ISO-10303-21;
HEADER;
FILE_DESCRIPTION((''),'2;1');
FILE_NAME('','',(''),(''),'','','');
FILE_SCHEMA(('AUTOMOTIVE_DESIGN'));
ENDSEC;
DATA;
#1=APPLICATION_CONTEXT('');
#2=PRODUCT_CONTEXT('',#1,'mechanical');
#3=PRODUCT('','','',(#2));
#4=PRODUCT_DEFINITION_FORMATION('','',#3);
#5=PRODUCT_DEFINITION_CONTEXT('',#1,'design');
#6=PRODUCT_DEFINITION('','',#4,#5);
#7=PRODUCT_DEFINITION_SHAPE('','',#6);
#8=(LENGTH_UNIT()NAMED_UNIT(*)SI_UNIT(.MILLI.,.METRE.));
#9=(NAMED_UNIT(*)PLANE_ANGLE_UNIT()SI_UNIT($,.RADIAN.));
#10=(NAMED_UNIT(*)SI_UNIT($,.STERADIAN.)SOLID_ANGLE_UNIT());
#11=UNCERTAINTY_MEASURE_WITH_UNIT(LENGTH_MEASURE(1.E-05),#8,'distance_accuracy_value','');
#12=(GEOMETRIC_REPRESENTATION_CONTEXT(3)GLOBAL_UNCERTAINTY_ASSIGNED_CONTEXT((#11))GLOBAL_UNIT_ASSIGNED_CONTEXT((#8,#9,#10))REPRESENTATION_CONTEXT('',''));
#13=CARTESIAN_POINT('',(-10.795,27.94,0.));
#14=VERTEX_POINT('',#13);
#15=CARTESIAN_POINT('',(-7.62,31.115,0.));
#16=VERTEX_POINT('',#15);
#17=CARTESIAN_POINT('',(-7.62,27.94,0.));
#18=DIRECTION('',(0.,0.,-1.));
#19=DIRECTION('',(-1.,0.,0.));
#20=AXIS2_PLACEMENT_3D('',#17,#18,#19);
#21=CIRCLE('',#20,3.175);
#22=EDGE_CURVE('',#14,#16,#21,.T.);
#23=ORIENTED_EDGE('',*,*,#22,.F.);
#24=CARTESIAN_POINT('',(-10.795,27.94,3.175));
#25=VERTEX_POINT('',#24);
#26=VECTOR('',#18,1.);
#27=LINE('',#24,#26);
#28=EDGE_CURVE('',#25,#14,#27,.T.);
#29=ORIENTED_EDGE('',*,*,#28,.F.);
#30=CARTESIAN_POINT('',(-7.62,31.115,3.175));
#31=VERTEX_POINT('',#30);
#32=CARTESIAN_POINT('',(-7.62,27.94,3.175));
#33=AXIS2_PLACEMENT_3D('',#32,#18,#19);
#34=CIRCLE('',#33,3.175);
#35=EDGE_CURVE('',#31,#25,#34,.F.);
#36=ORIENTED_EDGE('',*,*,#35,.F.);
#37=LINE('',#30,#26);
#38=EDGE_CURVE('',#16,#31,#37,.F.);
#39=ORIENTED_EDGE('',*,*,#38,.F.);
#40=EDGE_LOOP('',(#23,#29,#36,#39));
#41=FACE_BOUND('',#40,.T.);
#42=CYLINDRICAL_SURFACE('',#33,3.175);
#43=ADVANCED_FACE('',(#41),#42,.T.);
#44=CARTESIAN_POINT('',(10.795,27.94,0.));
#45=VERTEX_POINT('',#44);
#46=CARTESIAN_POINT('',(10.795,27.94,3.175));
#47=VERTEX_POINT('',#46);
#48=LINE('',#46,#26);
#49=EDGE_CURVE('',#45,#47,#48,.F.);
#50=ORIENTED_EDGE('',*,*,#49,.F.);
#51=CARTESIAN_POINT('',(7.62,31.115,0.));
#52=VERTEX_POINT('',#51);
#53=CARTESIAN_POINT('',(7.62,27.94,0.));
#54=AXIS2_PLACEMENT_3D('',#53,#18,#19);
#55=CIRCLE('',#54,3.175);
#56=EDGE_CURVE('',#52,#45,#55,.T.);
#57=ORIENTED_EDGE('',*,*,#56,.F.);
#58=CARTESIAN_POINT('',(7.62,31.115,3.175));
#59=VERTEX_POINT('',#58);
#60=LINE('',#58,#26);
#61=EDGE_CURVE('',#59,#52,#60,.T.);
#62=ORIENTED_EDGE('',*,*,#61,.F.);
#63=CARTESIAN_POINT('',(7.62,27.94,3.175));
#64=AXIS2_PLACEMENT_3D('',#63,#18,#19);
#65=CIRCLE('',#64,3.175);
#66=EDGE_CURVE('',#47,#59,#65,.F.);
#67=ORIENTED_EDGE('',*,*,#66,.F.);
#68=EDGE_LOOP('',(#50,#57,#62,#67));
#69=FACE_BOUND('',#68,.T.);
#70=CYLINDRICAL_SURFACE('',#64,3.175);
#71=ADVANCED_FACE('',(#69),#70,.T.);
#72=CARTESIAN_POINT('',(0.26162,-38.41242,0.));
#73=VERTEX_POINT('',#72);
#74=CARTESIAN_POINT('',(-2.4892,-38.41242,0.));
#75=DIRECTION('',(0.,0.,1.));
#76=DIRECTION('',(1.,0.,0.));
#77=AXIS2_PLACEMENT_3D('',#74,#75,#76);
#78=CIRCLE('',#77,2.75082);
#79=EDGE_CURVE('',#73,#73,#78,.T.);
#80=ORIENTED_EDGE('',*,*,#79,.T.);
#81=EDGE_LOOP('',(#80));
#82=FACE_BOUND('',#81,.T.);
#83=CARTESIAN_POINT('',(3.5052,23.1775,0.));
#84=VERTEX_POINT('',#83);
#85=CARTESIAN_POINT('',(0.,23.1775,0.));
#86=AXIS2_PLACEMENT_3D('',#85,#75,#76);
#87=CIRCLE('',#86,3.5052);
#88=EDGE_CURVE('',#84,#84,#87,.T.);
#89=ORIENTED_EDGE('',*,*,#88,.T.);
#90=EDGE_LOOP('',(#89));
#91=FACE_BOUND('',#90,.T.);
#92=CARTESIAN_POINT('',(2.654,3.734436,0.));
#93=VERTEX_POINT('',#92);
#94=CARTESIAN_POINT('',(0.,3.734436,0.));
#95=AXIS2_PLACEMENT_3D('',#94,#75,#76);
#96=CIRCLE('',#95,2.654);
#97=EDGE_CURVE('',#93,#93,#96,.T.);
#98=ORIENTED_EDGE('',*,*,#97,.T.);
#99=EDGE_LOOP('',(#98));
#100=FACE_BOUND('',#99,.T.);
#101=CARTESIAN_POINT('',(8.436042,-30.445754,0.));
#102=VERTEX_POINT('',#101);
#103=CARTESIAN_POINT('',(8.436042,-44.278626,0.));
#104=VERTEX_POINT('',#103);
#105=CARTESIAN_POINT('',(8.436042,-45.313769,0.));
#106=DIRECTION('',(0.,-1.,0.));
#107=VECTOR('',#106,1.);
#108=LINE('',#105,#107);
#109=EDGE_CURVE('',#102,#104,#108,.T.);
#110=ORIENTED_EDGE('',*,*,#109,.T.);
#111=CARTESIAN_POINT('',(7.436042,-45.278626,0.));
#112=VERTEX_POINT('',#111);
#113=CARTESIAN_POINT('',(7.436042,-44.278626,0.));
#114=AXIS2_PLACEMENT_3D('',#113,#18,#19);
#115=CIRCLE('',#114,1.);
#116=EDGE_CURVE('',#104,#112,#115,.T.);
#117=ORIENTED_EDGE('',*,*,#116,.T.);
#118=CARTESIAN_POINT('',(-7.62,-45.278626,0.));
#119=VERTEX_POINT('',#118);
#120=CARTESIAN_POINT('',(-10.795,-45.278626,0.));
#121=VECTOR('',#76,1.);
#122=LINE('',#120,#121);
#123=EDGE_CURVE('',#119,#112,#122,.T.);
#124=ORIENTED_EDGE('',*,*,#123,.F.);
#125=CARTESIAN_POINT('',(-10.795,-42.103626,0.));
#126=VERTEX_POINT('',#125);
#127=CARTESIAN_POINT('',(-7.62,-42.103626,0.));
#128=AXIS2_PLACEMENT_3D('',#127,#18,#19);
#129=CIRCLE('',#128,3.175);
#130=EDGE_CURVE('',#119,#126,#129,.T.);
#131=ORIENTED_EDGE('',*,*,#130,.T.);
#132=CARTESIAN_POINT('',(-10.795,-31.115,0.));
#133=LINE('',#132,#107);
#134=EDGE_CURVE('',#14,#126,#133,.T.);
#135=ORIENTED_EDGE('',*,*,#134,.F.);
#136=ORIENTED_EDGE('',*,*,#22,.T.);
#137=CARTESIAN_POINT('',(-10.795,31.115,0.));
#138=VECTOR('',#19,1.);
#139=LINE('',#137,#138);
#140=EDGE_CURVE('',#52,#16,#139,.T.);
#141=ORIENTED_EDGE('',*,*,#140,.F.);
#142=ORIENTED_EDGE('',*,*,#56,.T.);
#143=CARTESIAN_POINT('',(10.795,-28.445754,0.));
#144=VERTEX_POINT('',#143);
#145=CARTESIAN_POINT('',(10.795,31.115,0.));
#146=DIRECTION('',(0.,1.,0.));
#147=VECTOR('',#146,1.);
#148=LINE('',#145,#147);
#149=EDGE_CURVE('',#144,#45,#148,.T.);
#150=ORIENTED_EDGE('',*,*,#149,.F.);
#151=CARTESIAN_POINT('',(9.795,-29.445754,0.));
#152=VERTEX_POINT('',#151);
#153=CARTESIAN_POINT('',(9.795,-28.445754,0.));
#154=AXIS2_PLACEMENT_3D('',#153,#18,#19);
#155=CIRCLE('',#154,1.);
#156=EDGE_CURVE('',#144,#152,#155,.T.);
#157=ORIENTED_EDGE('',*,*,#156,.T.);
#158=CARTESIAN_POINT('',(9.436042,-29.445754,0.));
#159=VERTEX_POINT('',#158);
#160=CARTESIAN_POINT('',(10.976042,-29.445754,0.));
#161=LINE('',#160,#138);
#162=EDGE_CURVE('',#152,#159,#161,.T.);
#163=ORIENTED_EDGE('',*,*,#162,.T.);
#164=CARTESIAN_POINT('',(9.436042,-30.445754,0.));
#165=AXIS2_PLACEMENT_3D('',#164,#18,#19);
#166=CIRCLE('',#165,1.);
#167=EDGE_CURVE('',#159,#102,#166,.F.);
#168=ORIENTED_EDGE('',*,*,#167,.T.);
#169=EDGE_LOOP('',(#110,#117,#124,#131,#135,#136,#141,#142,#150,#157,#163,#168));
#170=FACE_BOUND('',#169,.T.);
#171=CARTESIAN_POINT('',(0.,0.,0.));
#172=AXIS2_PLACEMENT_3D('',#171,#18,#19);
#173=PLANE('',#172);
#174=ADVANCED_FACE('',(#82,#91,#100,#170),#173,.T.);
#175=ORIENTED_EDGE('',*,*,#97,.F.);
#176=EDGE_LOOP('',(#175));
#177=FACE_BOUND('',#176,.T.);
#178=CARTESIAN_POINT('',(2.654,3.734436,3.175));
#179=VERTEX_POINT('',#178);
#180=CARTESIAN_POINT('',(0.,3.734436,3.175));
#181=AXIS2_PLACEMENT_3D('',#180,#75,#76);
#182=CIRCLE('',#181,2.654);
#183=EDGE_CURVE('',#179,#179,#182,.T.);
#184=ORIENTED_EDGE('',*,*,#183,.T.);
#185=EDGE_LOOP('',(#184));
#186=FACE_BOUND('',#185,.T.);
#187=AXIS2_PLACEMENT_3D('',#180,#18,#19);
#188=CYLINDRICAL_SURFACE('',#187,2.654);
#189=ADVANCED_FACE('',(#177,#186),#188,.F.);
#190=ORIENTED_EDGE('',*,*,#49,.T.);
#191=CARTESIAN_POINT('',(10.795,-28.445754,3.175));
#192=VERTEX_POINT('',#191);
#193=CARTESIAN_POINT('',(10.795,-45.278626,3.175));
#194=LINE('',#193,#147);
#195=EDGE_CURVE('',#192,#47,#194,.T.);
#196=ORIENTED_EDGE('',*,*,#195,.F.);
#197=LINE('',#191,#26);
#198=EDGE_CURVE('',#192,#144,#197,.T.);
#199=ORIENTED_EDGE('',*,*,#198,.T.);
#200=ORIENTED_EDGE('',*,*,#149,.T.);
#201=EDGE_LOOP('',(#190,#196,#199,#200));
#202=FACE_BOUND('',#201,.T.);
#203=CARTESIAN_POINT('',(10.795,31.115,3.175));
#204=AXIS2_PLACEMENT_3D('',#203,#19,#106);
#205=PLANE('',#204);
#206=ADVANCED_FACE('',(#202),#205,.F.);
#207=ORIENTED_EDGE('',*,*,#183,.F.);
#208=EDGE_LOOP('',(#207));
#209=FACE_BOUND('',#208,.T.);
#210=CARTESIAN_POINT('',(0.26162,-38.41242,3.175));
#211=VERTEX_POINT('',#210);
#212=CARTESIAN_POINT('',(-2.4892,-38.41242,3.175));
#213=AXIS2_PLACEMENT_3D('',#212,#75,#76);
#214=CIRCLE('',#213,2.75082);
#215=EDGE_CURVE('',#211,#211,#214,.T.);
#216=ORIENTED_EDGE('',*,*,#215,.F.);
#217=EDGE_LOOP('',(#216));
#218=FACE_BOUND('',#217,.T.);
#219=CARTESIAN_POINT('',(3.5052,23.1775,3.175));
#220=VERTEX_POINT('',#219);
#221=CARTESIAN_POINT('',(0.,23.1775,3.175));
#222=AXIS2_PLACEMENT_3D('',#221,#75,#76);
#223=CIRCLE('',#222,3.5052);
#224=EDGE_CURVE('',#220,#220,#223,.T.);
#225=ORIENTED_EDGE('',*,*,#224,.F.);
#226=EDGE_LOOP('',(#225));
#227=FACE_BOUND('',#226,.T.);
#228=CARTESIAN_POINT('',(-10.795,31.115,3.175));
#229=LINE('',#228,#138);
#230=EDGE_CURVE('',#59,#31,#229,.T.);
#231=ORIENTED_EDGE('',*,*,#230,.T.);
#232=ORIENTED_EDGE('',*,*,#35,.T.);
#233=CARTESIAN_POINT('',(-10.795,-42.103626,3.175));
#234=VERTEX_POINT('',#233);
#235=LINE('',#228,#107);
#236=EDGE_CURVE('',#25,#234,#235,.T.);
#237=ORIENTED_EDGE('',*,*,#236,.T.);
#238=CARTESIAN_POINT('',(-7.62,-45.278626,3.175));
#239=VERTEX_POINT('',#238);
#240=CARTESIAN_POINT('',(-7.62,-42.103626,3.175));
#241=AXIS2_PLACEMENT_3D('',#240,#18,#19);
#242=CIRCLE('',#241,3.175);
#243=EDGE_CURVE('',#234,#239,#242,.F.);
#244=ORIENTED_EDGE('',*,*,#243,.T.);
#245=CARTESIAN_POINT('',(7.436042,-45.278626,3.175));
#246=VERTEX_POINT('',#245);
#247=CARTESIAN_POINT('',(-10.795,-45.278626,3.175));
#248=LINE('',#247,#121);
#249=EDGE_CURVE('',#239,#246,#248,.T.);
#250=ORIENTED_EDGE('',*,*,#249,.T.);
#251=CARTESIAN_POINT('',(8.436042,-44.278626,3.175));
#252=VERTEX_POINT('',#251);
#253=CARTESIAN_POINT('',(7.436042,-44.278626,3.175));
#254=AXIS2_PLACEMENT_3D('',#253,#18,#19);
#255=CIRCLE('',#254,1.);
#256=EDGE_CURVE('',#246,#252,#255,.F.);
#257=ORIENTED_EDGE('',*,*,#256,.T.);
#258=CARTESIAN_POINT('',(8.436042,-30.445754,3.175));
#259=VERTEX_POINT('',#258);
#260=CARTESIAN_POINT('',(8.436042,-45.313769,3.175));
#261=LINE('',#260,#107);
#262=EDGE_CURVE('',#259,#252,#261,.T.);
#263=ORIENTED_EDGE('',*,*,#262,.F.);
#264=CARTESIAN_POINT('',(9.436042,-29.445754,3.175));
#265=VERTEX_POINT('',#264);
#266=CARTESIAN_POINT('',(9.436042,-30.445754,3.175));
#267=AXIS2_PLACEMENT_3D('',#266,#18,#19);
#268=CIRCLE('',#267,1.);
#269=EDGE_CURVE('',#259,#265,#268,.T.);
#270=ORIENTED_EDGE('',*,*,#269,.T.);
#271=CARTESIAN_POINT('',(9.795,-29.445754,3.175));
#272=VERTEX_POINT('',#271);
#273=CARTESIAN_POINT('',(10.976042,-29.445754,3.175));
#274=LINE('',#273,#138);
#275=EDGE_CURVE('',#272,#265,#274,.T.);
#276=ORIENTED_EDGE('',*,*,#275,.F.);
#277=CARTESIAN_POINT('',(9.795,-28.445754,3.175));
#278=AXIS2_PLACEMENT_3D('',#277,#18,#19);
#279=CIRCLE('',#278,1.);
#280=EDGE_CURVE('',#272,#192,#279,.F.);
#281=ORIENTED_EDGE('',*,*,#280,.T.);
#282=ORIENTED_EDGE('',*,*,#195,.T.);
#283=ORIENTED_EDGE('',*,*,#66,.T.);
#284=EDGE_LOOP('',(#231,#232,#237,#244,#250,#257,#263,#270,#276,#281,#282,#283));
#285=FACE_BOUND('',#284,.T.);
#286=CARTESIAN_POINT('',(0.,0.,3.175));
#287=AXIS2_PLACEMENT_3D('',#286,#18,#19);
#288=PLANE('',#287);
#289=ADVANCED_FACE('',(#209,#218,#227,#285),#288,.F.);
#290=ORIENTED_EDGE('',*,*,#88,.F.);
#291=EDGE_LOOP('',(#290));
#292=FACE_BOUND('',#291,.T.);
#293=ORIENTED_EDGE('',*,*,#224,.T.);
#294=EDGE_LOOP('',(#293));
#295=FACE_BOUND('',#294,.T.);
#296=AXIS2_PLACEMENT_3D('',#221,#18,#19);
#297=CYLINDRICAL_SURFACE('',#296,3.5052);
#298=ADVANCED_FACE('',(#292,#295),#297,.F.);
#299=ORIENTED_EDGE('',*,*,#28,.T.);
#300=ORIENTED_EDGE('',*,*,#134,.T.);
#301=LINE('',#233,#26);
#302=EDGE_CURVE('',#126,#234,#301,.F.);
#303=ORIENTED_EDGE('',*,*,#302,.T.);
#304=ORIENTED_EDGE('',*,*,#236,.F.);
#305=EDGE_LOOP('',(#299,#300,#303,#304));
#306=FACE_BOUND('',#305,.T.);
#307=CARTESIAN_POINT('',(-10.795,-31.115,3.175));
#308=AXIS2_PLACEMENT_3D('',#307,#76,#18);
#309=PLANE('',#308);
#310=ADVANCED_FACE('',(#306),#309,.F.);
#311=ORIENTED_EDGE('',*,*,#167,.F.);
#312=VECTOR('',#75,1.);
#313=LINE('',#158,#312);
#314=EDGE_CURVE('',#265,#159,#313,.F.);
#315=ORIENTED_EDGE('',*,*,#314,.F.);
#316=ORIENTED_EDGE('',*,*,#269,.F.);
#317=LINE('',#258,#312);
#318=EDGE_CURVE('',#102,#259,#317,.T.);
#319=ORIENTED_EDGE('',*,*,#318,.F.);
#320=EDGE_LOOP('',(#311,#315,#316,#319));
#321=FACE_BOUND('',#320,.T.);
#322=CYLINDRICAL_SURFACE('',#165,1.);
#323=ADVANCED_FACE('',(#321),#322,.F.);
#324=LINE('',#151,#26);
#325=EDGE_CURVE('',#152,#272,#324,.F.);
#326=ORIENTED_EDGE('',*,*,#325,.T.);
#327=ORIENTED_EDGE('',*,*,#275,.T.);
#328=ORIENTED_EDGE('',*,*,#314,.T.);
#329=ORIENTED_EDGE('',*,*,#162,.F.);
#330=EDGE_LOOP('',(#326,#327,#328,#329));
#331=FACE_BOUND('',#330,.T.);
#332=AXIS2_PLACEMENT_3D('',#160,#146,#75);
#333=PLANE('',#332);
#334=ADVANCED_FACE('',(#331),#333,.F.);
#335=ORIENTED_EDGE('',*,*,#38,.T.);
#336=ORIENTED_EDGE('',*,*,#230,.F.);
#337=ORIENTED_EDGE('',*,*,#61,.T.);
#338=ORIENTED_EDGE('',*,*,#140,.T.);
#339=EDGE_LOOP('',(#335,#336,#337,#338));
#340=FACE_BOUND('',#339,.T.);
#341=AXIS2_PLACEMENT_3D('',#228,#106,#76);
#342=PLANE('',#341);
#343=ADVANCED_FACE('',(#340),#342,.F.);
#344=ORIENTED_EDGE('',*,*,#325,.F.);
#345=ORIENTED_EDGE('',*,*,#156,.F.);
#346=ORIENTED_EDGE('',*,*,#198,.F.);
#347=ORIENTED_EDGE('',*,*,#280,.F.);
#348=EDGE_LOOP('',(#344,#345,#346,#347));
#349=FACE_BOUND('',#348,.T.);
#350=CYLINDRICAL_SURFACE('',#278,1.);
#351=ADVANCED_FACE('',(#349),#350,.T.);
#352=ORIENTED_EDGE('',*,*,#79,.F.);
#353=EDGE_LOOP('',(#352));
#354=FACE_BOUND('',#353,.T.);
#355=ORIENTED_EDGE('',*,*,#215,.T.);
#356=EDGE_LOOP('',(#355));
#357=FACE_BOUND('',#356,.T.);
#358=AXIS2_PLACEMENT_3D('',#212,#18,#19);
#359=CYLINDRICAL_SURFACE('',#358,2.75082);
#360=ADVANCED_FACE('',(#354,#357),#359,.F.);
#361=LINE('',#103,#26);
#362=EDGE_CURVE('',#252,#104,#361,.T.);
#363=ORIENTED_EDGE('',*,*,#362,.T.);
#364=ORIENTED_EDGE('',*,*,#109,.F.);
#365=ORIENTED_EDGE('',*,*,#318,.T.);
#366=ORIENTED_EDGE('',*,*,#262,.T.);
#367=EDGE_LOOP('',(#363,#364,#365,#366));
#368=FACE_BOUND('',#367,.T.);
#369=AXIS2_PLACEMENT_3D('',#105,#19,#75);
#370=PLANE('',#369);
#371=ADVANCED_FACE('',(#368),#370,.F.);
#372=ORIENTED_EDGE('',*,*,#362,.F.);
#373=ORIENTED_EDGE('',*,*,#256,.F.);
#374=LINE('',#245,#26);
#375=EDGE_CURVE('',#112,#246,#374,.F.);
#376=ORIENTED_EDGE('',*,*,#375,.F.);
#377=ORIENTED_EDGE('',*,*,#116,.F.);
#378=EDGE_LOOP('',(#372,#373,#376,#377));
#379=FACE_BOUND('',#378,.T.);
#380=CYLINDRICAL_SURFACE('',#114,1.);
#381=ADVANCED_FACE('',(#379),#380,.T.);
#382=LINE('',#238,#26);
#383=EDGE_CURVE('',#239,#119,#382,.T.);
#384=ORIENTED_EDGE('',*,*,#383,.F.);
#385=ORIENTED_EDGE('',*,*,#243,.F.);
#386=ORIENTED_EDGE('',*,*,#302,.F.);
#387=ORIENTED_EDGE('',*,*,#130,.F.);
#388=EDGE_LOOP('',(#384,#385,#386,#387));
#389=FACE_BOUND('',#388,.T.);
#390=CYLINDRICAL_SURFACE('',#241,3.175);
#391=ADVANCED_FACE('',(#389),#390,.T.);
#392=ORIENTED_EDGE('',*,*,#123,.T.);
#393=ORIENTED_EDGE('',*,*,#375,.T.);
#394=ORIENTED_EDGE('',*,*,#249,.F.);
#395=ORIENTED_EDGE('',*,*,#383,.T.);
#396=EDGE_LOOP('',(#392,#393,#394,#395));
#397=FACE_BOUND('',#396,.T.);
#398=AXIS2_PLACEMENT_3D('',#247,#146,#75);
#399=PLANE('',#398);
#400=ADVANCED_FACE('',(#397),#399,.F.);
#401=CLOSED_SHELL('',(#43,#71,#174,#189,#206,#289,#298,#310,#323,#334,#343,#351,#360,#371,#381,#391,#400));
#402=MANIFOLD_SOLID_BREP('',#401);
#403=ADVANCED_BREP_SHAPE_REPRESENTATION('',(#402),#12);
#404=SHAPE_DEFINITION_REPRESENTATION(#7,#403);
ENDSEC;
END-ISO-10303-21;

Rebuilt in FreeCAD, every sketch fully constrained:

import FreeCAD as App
import Part
import Sketcher
Q = App.Units.Quantity


def edges_at(feature, points):
    """Names of the edges that pass closest to the given points."""
    edges = feature.Shape.Edges
    near = lambda p: min(range(len(edges)), key=lambda i: edges[i].distToShape(Part.Vertex(*p))[0])
    return sorted({f"Edge{near(p) + 1}" for p in points})


def add_polygon(sketch, points):
    """Adds a closed chain of lines whose ends are joined by coincident constraints."""
    first, n = sketch.GeometryCount, len(points)
    for a, b in zip(points, points[1:] + points[:1]):
        sketch.addGeometry(Part.LineSegment(App.Vector(*a, 0), App.Vector(*b, 0)), False)
    for i in range(n):
        sketch.addConstraint(Sketcher.Constraint("Coincident", first + i, 2, first + (i + 1) % n, 1))

doc = App.newDocument("Part")
params = doc.addObject("Spreadsheet::Sheet", "Params")
for row, (alias, value) in enumerate([
    ("sketch1_diameter", "0.276 in"),
    ("sketch1_width", "0.85 in"),
    ("pad1_length", "0.125 in"),
    ("fillet_radius", "0.125 in"),
    ("sketch2_width", "0.1 in"),
    ("fillet2_radius", "1 mm"),
], start=1):
    params.set(f"A{row}", alias)
    params.set(f"B{row}", "=" + value)
    params.setAlias(f"B{row}", alias)

body = doc.addObject("PartDesign::Body", "Body")

# Sketch on XY plane
sketch1 = doc.addObject("Sketcher::SketchObject", "Sketch")
body.addObject(sketch1)
sketch1.AttachmentSupport = (doc.XY_Plane, [""])
sketch1.MapMode = "FlatFace"
add_polygon(sketch1, [(10.795, 31.115), (-10.795, 31.115), (-10.795, -45.278626), (10.795, -45.278626)])  # lines 0-3
sketch1.addGeometry(Part.Circle(App.Vector(-2.4892, -38.41242, 0), App.Vector(0, 0, 1), 2.75082), False)  # 4
sketch1.addGeometry(Part.Circle(App.Vector(0, 3.734436, 0), App.Vector(0, 0, 1), 2.654), False)  # 5
sketch1.addGeometry(Part.Circle(App.Vector(0, 23.1775, 0), App.Vector(0, 0, 1), 3.5052), False)  # 6
sketch1.addConstraint([
    Sketcher.Constraint("Horizontal", 0),
    Sketcher.Constraint("Vertical", 1),
    Sketcher.Constraint("Horizontal", 2),
    Sketcher.Constraint("Vertical", 3),
    Sketcher.Constraint("PointOnObject", 5, 3, -2),
    Sketcher.Constraint("PointOnObject", 6, 3, -2),
    Sketcher.Constraint("Diameter", 6, Q("0.276 in")),
    Sketcher.Constraint("Diameter", 4, Q("0.2166 in")),
    Sketcher.Constraint("DistanceX", 0, 2, 0, 1, Q("0.85 in")),
    Sketcher.Constraint("Diameter", 5, 5.308),
    Sketcher.Constraint("DistanceX", 4, 3, -1, 1, Q("0.098 in")),
    Sketcher.Constraint("DistanceX", 0, 2, -1, 1, Q("0.425 in")),
    Sketcher.Constraint("DistanceY", -1, 1, 0, 2, Q("1.225 in")),
    Sketcher.Constraint("DistanceY", 6, 3, 0, 2, Q("0.3125 in")),
    Sketcher.Constraint("DistanceY", 4, 3, -1, 1, Q("1.5123 in")),
    Sketcher.Constraint("DistanceY", 1, 2, 1, 1, 76.393626),
    Sketcher.Constraint("DistanceY", 1, 2, 5, 3, 49.013062),
])
sketch1.setExpression("Constraints[10]", "Params.sketch1_diameter")
sketch1.setExpression("Constraints[12]", "Params.sketch1_width")
pad1 = doc.addObject("PartDesign::Pad", "Pad")
body.addObject(pad1)
pad1.Profile = sketch1
pad1.setExpression("Length", "Params.pad1_length")
doc.recompute()

fillet = doc.addObject("PartDesign::Fillet", "Fillet")
body.addObject(fillet)
fillet.Base = (pad1, edges_at(pad1, [
    (10.795, -45.279, 1.587),
    (-10.795, -45.279, 1.587),
    (-10.795, 31.115, 1.587),
    (10.795, 31.115, 1.587),
]))
fillet.setExpression("Radius", "Params.fillet_radius")

# Sketch on XY plane
sketch2 = doc.addObject("Sketcher::SketchObject", "Sketch001")
body.addObject(sketch2)
sketch2.AttachmentSupport = (doc.XY_Plane, [""])
sketch2.MapMode = "FlatFace"
sketch2.AttachmentOffset = App.Placement(App.Vector(0, 0, 0.125 * 25.4), App.Rotation())
add_polygon(sketch2, [(8.436042, -29.445754), (8.436042, -45.313769), (10.976042, -45.313769), (10.976042, -29.445754)])  # lines 0-3
sketch2.addConstraint([
    Sketcher.Constraint("Vertical", 0),
    Sketcher.Constraint("Horizontal", 1),
    Sketcher.Constraint("Vertical", 2),
    Sketcher.Constraint("Horizontal", 3),
    Sketcher.Constraint("DistanceX", 1, 1, 1, 2, Q("0.1 in")),
    Sketcher.Constraint("DistanceY", 0, 2, 0, 1, 15.868015),
    Sketcher.Constraint("DistanceY", 0, 2, -1, 1, 45.313769),
    Sketcher.Constraint("DistanceX", -1, 1, 0, 2, 8.436042),
])
sketch2.setExpression("Constraints[8]", "Params.sketch2_width")
pocket1 = doc.addObject("PartDesign::Pocket", "Pocket")
body.addObject(pocket1)
pocket1.Profile = sketch2
pocket1.Type = "ThroughAll"
doc.recompute()

fillet2 = doc.addObject("PartDesign::Fillet", "Fillet001")
body.addObject(fillet2)
fillet2.Base = (pocket1, edges_at(pocket1, [(10.795, -29.446, 1.587), (8.436, -29.446, 1.587), (8.436, -45.172, 1.587)]))
fillet2.setExpression("Radius", "Params.fillet2_radius")

doc.recompute()
